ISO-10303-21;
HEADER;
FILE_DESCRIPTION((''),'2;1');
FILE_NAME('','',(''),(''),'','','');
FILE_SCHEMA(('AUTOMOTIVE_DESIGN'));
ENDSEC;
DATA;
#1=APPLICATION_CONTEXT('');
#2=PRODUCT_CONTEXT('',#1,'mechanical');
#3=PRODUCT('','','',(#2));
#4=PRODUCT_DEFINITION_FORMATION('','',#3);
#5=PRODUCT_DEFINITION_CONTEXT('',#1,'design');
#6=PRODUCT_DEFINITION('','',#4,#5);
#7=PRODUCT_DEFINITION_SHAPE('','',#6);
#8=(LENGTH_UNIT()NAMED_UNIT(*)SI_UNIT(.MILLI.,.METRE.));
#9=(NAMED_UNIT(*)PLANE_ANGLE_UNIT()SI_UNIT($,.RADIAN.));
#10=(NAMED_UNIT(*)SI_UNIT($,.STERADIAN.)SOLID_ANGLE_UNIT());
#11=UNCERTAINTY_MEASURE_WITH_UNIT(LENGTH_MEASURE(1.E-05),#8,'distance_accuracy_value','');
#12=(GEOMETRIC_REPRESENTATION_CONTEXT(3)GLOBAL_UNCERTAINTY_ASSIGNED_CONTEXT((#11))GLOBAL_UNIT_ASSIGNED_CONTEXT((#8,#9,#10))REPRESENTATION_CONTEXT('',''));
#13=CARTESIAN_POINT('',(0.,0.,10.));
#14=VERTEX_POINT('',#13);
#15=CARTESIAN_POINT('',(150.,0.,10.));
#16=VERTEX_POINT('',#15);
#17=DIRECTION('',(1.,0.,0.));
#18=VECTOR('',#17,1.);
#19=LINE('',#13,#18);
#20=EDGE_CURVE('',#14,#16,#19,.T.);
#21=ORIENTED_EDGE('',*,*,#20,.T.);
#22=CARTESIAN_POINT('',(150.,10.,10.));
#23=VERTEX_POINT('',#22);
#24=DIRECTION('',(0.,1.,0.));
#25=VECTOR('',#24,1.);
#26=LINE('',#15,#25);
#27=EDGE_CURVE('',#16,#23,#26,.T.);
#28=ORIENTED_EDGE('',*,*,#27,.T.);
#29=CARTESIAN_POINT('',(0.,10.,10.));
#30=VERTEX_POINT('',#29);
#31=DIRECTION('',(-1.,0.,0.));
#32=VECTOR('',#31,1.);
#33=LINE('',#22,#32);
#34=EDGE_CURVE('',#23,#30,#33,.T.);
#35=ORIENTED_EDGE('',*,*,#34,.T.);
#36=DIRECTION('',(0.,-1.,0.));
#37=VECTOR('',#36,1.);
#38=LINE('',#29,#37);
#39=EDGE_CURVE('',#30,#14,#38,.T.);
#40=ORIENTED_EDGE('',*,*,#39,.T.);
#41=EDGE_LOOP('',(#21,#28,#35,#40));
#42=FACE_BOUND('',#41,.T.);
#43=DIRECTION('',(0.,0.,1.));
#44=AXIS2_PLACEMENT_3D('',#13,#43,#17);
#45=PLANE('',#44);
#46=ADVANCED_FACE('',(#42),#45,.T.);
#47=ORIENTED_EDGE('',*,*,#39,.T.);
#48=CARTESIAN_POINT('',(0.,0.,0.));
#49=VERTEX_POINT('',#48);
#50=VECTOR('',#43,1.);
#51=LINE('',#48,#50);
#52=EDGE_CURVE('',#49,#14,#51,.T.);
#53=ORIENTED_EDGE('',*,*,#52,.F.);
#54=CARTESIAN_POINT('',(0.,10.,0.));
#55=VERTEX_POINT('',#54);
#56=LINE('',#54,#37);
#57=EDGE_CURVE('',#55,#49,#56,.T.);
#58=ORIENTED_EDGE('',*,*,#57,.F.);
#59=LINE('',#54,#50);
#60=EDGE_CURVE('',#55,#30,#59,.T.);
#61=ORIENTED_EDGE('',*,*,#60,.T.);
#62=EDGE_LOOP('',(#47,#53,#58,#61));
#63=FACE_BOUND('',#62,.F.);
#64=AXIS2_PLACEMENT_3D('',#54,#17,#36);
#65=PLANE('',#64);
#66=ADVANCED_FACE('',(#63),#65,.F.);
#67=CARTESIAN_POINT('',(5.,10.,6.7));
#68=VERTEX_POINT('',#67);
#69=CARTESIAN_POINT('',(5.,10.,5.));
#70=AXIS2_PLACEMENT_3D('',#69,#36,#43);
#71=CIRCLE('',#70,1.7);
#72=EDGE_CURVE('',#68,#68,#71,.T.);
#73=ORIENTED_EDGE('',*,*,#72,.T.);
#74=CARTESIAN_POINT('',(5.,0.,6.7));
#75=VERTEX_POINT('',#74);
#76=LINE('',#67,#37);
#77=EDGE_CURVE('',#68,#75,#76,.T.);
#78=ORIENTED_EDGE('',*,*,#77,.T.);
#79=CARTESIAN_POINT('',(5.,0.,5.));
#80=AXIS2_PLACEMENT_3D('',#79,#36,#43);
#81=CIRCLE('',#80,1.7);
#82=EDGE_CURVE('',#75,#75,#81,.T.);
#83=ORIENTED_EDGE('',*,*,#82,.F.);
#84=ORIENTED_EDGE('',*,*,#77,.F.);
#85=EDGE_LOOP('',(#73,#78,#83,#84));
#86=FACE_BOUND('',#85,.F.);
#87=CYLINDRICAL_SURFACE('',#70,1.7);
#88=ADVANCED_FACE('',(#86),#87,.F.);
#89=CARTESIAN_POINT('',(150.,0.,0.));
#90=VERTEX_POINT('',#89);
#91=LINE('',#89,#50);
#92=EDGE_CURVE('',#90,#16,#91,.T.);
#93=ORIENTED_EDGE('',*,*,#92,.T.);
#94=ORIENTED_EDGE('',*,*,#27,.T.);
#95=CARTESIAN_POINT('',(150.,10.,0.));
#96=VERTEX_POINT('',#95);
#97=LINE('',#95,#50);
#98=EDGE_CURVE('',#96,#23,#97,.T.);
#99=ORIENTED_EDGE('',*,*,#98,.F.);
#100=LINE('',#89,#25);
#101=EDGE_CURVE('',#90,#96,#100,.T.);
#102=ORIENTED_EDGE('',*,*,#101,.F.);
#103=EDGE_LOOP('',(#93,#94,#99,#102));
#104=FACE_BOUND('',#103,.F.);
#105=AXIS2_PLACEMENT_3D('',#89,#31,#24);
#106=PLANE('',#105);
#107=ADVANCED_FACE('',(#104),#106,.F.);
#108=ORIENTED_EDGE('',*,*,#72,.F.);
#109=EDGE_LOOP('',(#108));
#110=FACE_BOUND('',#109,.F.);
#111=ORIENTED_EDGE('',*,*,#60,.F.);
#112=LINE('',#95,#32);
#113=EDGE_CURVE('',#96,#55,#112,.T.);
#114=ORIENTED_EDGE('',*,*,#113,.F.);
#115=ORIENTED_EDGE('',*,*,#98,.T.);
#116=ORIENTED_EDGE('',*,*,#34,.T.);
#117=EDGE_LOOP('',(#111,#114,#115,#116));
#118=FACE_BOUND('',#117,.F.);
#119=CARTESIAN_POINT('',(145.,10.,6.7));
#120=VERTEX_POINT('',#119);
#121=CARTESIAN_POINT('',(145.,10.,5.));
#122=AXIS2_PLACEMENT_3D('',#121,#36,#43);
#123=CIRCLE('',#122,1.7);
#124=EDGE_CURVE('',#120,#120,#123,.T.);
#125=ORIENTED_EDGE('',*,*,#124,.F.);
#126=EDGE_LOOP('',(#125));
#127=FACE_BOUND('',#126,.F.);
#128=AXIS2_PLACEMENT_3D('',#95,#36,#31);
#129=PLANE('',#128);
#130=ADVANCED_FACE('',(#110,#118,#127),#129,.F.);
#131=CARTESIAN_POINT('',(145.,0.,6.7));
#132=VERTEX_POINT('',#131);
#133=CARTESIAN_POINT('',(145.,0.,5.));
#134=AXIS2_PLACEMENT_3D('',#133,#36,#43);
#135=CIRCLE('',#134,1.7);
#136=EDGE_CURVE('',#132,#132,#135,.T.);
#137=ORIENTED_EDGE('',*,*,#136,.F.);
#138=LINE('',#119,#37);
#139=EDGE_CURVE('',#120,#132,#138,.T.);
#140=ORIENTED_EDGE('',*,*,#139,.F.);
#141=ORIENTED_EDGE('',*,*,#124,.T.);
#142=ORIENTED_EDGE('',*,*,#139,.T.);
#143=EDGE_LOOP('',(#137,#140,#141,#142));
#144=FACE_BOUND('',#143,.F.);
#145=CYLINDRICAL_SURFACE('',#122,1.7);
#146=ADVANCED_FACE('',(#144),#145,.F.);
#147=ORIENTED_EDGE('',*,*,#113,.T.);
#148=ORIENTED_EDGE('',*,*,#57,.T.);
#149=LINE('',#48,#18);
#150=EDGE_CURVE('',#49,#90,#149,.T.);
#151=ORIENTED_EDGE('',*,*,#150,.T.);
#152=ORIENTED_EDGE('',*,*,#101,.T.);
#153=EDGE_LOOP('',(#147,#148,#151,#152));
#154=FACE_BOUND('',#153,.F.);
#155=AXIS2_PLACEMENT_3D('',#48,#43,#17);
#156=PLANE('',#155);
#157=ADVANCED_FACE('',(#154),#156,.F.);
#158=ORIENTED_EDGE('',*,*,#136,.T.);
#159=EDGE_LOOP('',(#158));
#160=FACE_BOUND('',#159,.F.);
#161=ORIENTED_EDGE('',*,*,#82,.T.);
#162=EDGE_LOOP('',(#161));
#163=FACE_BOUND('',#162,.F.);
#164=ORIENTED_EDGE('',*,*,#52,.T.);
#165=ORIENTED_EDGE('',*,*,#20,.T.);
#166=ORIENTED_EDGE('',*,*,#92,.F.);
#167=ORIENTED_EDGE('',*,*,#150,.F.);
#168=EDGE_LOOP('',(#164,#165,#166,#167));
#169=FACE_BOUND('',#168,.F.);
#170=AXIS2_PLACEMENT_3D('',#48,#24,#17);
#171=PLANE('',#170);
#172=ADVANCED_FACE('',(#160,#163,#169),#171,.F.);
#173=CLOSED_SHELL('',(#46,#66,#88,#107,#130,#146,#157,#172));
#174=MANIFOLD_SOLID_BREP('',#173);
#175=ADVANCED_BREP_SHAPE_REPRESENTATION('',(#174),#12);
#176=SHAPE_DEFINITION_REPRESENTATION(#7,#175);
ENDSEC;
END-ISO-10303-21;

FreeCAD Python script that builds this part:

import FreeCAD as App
import Part
import Sketcher
from FreeCAD import Vector


def add_polygon(sketch, points):
    """Adds a closed chain of lines whose ends are joined by coincident constraints."""
    first, n = sketch.GeometryCount, len(points)
    for a, b in zip(points, points[1:] + points[:1]):
        sketch.addGeometry(Part.LineSegment(App.Vector(*a, 0), App.Vector(*b, 0)), False)
    for i in range(n):
        sketch.addConstraint(Sketcher.Constraint("Coincident", first + i, 2, first + (i + 1) % n, 1))

doc = App.newDocument("Part")
body = doc.addObject("PartDesign::Body", "Body")

# Sketch on XY plane
sketch1 = body.newObject("Sketcher::SketchObject", "Sketch")
sketch1.AttachmentSupport = (doc.getObject("XY_Plane"), [""])
sketch1.MapMode = "FlatFace"
add_polygon(sketch1, [(0, 10), (0, 0), (150, 0), (150, 10)])  # lines 0-3
sketch1.addConstraint([
    Sketcher.Constraint("Vertical", 0),
    Sketcher.Constraint("Horizontal", 1),
    Sketcher.Constraint("Vertical", 2),
    Sketcher.Constraint("Horizontal", 3),
    Sketcher.Constraint("Coincident", 0, 2, -1, 1),
    Sketcher.Constraint("DistanceX", 1, 1, 1, 2, 150.0),
    Sketcher.Constraint("DistanceY", 0, 2, 0, 1, 10.0),
])
pad1 = body.newObject("PartDesign::Pad", "Pad")
pad1.Profile = sketch1
pad1.Length = 10

# Sketch on XZ plane
sketch2 = body.newObject("Sketcher::SketchObject", "Sketch001")
sketch2.AttachmentSupport = (doc.getObject("XZ_Plane"), [""])
sketch2.MapMode = "FlatFace"
sketch2.AttachmentOffset = App.Placement(Vector(0, 0, -10), App.Rotation())
sketch2.addGeometry([
    Part.Circle(Vector(5, 5, 0), Vector(0, 0, 1), 1.7),
    Part.Circle(Vector(145, 5, 0), Vector(0, 0, 1), 1.7),
], False)
sketch2.addConstraint([
    Sketcher.Constraint("Equal", 0, 1),
    Sketcher.Constraint("Horizontal", 0, 3, 1, 3),
    Sketcher.Constraint("Diameter", 0, 3.4),
    Sketcher.Constraint("DistanceX", -1, 1, 0, 3, 5.0),
    Sketcher.Constraint("DistanceY", -1, 1, 0, 3, 5.0),
    Sketcher.Constraint("DistanceX", -1, 1, 1, 3, 145.0),
])
doc.recompute()
hole = body.newObject("PartDesign::Hole", "Hole")
hole.Profile = sketch2
hole.ThreadType = "None"
hole.Diameter = 3.4
hole.DepthType = "ThroughAll"
hole.Reversed = True

doc.recompute()
